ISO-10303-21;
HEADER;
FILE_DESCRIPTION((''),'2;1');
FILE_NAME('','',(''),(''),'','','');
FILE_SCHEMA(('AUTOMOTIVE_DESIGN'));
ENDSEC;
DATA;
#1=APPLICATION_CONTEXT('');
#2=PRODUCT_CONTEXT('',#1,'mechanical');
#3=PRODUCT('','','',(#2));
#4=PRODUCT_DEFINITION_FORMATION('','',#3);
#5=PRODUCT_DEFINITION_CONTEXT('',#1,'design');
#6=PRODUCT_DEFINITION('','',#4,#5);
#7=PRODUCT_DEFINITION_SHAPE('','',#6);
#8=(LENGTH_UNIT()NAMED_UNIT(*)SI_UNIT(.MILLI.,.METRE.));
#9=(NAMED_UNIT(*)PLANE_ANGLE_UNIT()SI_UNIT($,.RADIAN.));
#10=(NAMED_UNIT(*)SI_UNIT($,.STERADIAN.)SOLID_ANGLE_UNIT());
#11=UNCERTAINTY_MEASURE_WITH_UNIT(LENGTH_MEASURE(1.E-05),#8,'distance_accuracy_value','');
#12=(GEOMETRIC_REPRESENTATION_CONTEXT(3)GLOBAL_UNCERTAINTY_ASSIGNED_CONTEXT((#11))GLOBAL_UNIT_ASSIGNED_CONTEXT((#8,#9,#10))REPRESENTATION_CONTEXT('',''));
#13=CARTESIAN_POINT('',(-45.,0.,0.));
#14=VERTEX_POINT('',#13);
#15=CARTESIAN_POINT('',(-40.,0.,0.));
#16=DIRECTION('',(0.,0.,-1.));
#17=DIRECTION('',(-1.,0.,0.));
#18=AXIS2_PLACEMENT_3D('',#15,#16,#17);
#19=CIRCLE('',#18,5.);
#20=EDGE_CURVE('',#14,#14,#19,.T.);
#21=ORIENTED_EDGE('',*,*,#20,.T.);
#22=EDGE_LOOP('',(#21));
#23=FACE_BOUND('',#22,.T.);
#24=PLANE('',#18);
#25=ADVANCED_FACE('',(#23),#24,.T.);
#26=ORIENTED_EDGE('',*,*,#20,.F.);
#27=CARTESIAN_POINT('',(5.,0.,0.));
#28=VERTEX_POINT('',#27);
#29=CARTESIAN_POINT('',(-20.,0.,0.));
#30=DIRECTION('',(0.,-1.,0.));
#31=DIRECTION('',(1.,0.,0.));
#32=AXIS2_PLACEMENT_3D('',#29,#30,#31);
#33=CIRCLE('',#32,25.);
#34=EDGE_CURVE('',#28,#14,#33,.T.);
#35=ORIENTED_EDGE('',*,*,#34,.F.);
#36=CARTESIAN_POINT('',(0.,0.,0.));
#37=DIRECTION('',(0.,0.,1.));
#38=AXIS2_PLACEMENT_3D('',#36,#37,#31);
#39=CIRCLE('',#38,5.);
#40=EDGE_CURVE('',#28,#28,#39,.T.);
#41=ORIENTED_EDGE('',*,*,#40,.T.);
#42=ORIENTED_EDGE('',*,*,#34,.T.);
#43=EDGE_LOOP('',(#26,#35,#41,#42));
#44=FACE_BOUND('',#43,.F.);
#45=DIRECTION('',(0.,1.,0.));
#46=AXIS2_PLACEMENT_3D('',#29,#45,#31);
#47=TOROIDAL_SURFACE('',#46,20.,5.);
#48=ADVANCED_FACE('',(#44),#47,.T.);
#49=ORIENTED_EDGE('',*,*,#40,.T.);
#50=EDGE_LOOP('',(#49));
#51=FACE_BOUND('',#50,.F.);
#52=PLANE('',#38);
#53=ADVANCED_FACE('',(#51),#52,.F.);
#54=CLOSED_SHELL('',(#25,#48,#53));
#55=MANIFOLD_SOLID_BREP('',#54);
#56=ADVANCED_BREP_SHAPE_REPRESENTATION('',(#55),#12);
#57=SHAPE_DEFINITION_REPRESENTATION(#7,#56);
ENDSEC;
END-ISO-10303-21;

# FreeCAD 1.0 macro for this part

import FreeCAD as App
import Part
import Sketcher
Q = App.Units.Quantity

doc = App.newDocument("Part")
body = doc.addObject("PartDesign::Body", "Body")

# Sketch on XY plane
sketch1 = body.newObject("Sketcher::SketchObject", "Sketch")
sketch1.AttachmentSupport = (doc.getObject("XY_Plane"), [""])
sketch1.MapMode = "FlatFace"
sketch1.addGeometry(Part.Circle(App.Vector(0, 0, 0), App.Vector(0, 0, 1), 5), False)
sketch1.addGeometry(Part.LineSegment(App.Vector(-20, 0, 0), App.Vector(-20, -10, 0)), True)  # axis
sketch1.addConstraint(Sketcher.Constraint("Vertical", 1))
sketch1.addConstraint(Sketcher.Constraint("Coincident", 0, 3, -1, 1))
sketch1.addConstraint(Sketcher.Constraint("PointOnObject", 1, 1, -1))
sketch1.addConstraint(Sketcher.Constraint("Diameter", 0, Q("10 mm")))
sketch1.addConstraint(Sketcher.Constraint("DistanceY", 1, 2, 1, 1, Q("10 mm")))
sketch1.addConstraint(Sketcher.Constraint("DistanceX", 1, 1, -1, 1, Q("20 mm")))
revolution = body.newObject("PartDesign::Revolution", "Revolution")
revolution.Profile = sketch1
revolution.ReferenceAxis = (sketch1, ["Axis0"])
revolution.Angle = 180

doc.recompute()
